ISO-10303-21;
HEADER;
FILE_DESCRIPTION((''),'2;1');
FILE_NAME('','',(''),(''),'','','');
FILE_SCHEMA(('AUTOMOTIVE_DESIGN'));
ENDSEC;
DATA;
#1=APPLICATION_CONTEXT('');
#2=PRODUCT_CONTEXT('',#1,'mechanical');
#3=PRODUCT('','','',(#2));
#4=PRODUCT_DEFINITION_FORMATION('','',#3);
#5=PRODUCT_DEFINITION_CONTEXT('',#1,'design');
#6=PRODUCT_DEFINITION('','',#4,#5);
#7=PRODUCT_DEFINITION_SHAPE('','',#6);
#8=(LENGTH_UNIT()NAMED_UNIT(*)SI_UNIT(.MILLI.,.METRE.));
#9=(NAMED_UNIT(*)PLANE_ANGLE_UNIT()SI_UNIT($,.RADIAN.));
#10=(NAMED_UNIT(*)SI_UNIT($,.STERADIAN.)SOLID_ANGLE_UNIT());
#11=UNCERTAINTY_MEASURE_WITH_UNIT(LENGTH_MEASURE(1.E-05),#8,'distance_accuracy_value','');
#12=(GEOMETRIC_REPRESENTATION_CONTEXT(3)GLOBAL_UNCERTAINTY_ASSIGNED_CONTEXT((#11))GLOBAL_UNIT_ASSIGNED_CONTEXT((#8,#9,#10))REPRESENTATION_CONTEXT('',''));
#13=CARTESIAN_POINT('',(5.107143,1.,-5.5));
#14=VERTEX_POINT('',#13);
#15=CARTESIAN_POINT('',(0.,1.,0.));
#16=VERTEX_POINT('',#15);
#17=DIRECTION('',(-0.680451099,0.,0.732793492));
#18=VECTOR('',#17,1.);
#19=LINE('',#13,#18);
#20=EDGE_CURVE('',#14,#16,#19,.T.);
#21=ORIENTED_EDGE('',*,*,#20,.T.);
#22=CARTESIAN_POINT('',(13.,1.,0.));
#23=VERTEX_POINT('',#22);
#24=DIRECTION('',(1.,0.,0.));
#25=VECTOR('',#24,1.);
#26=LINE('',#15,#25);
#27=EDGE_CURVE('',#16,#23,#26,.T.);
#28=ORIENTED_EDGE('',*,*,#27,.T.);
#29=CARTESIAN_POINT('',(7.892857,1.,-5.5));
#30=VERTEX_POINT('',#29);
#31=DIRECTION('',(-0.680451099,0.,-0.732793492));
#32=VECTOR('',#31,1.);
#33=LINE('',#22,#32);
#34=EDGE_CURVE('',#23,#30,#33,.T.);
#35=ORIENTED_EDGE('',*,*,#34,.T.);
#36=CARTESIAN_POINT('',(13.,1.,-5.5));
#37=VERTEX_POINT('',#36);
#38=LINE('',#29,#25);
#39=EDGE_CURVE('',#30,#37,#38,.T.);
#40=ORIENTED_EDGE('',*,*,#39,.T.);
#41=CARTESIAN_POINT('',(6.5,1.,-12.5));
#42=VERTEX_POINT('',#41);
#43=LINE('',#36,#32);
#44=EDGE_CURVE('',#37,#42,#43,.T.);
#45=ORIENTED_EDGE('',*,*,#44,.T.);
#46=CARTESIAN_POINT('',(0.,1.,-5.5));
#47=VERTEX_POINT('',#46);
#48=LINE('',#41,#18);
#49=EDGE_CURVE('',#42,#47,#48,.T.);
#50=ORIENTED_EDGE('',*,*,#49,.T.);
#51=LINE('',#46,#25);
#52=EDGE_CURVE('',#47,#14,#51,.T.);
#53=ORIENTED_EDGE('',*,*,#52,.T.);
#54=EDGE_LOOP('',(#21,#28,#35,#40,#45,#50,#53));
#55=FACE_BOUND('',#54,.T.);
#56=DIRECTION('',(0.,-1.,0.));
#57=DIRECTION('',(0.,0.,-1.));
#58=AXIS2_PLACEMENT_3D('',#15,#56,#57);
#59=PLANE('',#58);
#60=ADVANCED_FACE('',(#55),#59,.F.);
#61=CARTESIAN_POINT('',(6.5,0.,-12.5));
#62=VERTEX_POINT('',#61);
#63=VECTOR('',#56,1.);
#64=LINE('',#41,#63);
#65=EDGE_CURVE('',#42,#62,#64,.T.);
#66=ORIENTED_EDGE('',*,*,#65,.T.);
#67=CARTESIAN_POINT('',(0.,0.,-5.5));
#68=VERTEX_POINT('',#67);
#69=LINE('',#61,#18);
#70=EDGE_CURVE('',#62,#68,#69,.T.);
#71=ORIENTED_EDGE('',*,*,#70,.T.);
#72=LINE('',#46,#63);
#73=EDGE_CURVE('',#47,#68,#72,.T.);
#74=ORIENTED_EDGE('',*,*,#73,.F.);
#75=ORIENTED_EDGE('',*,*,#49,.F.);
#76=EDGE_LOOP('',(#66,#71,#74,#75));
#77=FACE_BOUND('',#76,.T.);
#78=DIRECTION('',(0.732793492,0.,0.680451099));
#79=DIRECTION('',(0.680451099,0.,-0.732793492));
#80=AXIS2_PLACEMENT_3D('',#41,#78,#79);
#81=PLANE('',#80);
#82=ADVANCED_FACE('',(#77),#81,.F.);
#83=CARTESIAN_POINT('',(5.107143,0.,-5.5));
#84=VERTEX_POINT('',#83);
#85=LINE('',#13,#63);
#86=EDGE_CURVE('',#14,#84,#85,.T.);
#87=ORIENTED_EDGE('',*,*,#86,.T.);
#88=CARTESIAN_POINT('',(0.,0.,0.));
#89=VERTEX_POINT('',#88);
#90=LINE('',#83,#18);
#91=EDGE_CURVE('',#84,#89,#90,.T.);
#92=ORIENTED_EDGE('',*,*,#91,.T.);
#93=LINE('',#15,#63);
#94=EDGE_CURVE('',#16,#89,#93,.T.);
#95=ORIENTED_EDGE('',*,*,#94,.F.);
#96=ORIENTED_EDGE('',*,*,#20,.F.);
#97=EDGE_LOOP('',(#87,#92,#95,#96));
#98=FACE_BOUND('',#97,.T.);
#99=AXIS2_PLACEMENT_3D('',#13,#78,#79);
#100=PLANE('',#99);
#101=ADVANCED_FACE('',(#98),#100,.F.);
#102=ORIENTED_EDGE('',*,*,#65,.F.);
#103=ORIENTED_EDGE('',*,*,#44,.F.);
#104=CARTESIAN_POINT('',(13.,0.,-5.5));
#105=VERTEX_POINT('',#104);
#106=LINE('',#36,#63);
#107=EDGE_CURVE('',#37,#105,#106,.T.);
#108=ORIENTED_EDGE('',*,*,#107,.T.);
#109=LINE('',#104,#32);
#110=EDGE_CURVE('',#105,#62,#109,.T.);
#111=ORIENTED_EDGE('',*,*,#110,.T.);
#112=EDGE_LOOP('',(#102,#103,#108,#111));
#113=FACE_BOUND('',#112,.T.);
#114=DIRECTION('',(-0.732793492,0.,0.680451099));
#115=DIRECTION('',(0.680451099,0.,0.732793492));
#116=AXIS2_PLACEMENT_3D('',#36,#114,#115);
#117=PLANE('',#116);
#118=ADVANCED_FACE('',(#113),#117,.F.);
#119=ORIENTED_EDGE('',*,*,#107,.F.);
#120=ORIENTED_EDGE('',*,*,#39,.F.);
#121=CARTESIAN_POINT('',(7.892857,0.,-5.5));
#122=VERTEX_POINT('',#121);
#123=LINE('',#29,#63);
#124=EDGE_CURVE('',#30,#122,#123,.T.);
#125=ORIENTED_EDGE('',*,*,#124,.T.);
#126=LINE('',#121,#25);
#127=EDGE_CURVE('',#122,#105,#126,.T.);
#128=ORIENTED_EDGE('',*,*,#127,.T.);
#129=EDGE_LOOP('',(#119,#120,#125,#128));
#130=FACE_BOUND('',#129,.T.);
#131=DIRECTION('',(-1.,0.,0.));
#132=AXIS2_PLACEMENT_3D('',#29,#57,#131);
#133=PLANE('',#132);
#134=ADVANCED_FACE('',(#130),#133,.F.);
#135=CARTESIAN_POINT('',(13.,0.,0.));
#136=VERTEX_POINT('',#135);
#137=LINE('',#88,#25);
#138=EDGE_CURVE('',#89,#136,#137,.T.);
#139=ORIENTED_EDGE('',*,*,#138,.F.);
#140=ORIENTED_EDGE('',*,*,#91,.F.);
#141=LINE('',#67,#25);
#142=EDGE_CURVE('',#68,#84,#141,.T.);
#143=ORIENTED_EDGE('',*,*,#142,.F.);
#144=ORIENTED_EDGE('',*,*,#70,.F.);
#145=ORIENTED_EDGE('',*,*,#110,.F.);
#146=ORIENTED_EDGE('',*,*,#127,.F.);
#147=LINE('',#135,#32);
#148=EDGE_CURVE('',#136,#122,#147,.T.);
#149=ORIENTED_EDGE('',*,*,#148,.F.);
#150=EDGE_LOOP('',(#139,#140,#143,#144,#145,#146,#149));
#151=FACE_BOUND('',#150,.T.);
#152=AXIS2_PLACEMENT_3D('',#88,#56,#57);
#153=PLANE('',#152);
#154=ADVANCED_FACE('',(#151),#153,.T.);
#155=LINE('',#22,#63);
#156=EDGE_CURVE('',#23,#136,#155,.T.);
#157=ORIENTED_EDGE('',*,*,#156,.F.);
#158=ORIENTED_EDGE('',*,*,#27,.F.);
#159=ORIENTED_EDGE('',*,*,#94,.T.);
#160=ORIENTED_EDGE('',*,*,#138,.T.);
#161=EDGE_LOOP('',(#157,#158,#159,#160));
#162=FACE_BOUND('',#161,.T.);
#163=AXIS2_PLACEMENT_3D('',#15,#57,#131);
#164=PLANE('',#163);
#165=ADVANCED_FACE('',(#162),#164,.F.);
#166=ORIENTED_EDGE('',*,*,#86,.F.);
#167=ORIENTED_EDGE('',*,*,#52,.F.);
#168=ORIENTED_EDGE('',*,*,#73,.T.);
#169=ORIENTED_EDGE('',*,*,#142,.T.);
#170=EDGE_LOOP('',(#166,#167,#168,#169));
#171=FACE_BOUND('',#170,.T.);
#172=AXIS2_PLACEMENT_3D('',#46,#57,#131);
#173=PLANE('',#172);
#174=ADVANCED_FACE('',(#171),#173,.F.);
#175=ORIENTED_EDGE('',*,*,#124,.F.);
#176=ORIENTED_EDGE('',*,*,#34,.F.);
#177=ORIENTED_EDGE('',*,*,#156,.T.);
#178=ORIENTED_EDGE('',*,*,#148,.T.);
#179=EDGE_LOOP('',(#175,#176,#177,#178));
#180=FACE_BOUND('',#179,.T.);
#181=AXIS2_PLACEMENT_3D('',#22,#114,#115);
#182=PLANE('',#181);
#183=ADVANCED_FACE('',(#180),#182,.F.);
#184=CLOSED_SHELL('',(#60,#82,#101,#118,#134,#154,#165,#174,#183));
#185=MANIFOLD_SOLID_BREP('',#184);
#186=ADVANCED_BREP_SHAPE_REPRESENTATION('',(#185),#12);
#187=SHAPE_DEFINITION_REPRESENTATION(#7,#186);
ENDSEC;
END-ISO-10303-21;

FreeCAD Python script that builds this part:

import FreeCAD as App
import Part
import Sketcher

V = App.Vector


def add_polygon(sketch, points):
    """Adds a closed chain of lines whose ends are joined by coincident constraints."""
    first, n = sketch.GeometryCount, len(points)
    for a, b in zip(points, points[1:] + points[:1]):
        sketch.addGeometry(Part.LineSegment(App.Vector(*a, 0), App.Vector(*b, 0)), False)
    for i in range(n):
        sketch.addConstraint(Sketcher.Constraint("Coincident", first + i, 2, first + (i + 1) % n, 1))

doc = App.newDocument("Part")
params = doc.addObject("Spreadsheet::Sheet", "Params")
for row, (alias, value) in enumerate([
    ("sketch1_width", "13 mm"),
    ("pad1_length", "1 mm"),
], start=1):
    params.set(f"A{row}", alias)
    params.set(f"B{row}", "=" + value)
    params.setAlias(f"B{row}", alias)

body = doc.addObject("PartDesign::Body", "Body")

sketch1 = body.newObject("Sketcher::SketchObject", "Sketch")
sketch1.AttachmentSupport = (doc.getObject("XZ_Plane"), [""])
sketch1.MapMode = "FlatFace"
add_polygon(sketch1, [(0, 0), (13, 0), (8, -6), (13, -6), (6, -12), (0, -6), (5, -6)])
sketch1.addConstraint([
    Sketcher.Constraint("Horizontal", 0),
    Sketcher.Constraint("Horizontal", 2),
    Sketcher.Constraint("Horizontal", 5),
    Sketcher.Constraint("Coincident", 6, 2, -1, 1),
    Sketcher.Constraint("PointOnObject", 4, 2, -2),
    Sketcher.Constraint("Parallel", 1, 3),
    Sketcher.Constraint("Parallel", 4, 6),
    Sketcher.Constraint("Horizontal", 2, 2, 4, 2),
    Sketcher.Constraint("Vertical", 0, 2, 2, 2),
    Sketcher.Constraint("Equal", 2, 5),
    Sketcher.Constraint("DistanceX", 0, 1, 0, 2, 13.0),
    Sketcher.Constraint("DistanceY", 3, 2, 1, 2, 7.0),
    Sketcher.Constraint("DistanceY", 1, 2, -1, 1, 5.5),
])
sketch1.setExpression("Constraints[17]", "Params.sketch1_width")
pad1 = body.newObject("PartDesign::Pad", "Pad")
pad1.Profile = sketch1
pad1.setExpression("Length", "Params.pad1_length")
pad1.Reversed = True

doc.recompute()
